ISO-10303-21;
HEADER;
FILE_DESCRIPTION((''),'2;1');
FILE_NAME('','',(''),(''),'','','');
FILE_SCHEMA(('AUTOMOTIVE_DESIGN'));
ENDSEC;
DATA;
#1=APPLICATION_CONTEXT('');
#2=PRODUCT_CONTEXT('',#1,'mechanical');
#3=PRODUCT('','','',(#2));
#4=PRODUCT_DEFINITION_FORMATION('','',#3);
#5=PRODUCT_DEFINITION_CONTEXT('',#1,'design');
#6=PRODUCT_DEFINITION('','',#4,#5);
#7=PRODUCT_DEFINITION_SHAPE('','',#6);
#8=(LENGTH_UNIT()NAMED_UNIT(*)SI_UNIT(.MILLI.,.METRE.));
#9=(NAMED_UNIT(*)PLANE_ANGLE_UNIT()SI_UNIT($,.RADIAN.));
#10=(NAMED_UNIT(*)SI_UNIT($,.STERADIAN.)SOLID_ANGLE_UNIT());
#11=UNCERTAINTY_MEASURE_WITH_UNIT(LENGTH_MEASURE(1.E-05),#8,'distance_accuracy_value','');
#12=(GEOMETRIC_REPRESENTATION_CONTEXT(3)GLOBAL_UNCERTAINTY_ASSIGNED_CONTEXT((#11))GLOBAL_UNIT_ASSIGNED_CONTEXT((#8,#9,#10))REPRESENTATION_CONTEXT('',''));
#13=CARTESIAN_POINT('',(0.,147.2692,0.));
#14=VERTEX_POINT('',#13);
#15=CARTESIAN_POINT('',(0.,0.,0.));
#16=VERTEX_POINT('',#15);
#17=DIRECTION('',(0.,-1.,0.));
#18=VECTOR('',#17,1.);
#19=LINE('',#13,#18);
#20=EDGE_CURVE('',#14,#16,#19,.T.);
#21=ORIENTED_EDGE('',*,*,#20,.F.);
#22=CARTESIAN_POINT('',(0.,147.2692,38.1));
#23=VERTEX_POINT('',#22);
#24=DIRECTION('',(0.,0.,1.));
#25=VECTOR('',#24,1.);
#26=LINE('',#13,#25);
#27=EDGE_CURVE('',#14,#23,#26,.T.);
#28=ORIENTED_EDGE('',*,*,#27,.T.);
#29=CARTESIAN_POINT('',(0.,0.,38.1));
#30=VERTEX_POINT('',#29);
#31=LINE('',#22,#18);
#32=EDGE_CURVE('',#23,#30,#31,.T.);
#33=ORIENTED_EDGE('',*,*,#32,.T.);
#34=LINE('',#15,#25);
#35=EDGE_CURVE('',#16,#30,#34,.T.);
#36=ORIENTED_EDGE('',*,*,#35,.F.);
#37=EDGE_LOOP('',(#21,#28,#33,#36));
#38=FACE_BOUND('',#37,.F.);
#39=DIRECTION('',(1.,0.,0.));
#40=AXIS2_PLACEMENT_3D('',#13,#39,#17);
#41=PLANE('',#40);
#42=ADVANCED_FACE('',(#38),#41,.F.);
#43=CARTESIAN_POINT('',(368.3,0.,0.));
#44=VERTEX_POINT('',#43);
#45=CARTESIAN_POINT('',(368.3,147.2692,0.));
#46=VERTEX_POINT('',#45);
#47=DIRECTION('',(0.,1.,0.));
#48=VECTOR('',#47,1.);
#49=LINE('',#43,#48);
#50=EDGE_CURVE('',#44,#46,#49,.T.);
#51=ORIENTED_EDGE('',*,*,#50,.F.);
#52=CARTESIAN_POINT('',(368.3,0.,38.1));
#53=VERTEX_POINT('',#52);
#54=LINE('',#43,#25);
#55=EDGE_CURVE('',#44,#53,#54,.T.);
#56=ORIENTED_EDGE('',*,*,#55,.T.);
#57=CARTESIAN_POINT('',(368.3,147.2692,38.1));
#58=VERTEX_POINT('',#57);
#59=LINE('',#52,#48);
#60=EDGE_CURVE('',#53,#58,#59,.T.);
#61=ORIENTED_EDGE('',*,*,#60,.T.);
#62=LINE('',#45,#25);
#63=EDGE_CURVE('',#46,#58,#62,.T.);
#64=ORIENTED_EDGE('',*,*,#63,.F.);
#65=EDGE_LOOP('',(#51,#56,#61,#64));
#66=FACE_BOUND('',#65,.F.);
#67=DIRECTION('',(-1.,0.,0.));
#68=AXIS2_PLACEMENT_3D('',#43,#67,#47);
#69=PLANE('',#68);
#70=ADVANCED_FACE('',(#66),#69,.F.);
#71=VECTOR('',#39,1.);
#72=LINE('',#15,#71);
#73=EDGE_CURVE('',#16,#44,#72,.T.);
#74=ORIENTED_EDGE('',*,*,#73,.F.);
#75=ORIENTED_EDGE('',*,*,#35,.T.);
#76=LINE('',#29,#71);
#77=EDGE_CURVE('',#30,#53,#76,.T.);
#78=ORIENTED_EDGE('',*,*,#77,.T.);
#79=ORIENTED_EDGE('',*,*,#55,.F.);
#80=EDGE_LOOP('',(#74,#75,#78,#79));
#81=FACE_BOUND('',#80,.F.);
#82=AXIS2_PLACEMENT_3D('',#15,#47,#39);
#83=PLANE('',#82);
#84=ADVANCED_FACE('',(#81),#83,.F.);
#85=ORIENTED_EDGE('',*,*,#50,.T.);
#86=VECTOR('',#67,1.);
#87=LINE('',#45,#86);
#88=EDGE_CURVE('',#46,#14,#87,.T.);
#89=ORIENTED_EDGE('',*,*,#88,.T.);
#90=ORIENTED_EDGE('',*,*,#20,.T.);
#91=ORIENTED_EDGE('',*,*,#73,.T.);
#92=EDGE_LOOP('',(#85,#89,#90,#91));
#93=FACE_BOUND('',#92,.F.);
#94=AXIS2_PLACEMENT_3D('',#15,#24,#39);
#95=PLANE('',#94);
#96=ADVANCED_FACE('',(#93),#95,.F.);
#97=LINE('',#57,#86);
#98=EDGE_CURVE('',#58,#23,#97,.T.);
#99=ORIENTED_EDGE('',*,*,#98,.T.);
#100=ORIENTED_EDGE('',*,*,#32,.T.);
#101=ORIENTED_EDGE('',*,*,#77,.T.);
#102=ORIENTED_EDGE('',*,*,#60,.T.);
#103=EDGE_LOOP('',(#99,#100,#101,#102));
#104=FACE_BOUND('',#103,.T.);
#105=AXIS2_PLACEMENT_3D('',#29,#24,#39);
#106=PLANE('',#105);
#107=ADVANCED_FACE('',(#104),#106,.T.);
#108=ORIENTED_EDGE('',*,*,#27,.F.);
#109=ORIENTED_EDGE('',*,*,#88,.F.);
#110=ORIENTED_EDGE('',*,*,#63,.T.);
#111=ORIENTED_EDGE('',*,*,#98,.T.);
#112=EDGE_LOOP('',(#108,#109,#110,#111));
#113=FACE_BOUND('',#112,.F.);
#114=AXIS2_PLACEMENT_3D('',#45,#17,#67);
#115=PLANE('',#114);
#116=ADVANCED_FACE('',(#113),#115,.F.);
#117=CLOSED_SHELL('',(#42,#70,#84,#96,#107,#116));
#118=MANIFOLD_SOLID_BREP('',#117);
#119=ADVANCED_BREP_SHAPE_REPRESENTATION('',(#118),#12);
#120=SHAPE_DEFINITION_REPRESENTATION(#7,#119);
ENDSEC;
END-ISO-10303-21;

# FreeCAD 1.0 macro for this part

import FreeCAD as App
import Part
import Sketcher
from FreeCAD import Vector
Q = App.Units.Quantity

doc = App.newDocument("Part")
body = doc.addObject("PartDesign::Body", "Body")

# Sketch on XY plane
sketch1 = body.newObject("Sketcher::SketchObject", "Sketch")
sketch1.AttachmentSupport = (doc.getObject("XY_Plane"), [""])
sketch1.MapMode = "FlatFace"
sketch1.addGeometry(Part.LineSegment(Vector(0, 147.2692, 0), Vector(0, 0, 0)), False)
sketch1.addGeometry(Part.LineSegment(Vector(0, 0, 0), Vector(368.3, 0, 0)), False)
sketch1.addGeometry(Part.LineSegment(Vector(368.3, 0, 0), Vector(368.3, 147.2692, 0)), False)
sketch1.addGeometry(Part.LineSegment(Vector(368.3, 147.2692, 0), Vector(0, 147.2692, 0)), False)
sketch1.addConstraint(Sketcher.Constraint("Coincident", 0, 2, 1, 1))
sketch1.addConstraint(Sketcher.Constraint("Coincident", 1, 2, 2, 1))
sketch1.addConstraint(Sketcher.Constraint("Coincident", 2, 2, 3, 1))
sketch1.addConstraint(Sketcher.Constraint("Coincident", 3, 2, 0, 1))
sketch1.addConstraint(Sketcher.Constraint("Vertical", 0))
sketch1.addConstraint(Sketcher.Constraint("Horizontal", 1))
sketch1.addConstraint(Sketcher.Constraint("Vertical", 2))
sketch1.addConstraint(Sketcher.Constraint("Horizontal", 3))
sketch1.addConstraint(Sketcher.Constraint("Coincident", 0, 2, -1, 1))
sketch1.addConstraint(Sketcher.Constraint("DistanceX", 1, 1, 1, 2, Q("14.5 in")))
sketch1.addConstraint(Sketcher.Constraint("DistanceY", 0, 2, 0, 1, Q("5.798 in")))
pad1 = body.newObject("PartDesign::Pad", "Pad")
pad1.Profile = sketch1
pad1.Length = Q("1.5 in")

doc.recompute()
